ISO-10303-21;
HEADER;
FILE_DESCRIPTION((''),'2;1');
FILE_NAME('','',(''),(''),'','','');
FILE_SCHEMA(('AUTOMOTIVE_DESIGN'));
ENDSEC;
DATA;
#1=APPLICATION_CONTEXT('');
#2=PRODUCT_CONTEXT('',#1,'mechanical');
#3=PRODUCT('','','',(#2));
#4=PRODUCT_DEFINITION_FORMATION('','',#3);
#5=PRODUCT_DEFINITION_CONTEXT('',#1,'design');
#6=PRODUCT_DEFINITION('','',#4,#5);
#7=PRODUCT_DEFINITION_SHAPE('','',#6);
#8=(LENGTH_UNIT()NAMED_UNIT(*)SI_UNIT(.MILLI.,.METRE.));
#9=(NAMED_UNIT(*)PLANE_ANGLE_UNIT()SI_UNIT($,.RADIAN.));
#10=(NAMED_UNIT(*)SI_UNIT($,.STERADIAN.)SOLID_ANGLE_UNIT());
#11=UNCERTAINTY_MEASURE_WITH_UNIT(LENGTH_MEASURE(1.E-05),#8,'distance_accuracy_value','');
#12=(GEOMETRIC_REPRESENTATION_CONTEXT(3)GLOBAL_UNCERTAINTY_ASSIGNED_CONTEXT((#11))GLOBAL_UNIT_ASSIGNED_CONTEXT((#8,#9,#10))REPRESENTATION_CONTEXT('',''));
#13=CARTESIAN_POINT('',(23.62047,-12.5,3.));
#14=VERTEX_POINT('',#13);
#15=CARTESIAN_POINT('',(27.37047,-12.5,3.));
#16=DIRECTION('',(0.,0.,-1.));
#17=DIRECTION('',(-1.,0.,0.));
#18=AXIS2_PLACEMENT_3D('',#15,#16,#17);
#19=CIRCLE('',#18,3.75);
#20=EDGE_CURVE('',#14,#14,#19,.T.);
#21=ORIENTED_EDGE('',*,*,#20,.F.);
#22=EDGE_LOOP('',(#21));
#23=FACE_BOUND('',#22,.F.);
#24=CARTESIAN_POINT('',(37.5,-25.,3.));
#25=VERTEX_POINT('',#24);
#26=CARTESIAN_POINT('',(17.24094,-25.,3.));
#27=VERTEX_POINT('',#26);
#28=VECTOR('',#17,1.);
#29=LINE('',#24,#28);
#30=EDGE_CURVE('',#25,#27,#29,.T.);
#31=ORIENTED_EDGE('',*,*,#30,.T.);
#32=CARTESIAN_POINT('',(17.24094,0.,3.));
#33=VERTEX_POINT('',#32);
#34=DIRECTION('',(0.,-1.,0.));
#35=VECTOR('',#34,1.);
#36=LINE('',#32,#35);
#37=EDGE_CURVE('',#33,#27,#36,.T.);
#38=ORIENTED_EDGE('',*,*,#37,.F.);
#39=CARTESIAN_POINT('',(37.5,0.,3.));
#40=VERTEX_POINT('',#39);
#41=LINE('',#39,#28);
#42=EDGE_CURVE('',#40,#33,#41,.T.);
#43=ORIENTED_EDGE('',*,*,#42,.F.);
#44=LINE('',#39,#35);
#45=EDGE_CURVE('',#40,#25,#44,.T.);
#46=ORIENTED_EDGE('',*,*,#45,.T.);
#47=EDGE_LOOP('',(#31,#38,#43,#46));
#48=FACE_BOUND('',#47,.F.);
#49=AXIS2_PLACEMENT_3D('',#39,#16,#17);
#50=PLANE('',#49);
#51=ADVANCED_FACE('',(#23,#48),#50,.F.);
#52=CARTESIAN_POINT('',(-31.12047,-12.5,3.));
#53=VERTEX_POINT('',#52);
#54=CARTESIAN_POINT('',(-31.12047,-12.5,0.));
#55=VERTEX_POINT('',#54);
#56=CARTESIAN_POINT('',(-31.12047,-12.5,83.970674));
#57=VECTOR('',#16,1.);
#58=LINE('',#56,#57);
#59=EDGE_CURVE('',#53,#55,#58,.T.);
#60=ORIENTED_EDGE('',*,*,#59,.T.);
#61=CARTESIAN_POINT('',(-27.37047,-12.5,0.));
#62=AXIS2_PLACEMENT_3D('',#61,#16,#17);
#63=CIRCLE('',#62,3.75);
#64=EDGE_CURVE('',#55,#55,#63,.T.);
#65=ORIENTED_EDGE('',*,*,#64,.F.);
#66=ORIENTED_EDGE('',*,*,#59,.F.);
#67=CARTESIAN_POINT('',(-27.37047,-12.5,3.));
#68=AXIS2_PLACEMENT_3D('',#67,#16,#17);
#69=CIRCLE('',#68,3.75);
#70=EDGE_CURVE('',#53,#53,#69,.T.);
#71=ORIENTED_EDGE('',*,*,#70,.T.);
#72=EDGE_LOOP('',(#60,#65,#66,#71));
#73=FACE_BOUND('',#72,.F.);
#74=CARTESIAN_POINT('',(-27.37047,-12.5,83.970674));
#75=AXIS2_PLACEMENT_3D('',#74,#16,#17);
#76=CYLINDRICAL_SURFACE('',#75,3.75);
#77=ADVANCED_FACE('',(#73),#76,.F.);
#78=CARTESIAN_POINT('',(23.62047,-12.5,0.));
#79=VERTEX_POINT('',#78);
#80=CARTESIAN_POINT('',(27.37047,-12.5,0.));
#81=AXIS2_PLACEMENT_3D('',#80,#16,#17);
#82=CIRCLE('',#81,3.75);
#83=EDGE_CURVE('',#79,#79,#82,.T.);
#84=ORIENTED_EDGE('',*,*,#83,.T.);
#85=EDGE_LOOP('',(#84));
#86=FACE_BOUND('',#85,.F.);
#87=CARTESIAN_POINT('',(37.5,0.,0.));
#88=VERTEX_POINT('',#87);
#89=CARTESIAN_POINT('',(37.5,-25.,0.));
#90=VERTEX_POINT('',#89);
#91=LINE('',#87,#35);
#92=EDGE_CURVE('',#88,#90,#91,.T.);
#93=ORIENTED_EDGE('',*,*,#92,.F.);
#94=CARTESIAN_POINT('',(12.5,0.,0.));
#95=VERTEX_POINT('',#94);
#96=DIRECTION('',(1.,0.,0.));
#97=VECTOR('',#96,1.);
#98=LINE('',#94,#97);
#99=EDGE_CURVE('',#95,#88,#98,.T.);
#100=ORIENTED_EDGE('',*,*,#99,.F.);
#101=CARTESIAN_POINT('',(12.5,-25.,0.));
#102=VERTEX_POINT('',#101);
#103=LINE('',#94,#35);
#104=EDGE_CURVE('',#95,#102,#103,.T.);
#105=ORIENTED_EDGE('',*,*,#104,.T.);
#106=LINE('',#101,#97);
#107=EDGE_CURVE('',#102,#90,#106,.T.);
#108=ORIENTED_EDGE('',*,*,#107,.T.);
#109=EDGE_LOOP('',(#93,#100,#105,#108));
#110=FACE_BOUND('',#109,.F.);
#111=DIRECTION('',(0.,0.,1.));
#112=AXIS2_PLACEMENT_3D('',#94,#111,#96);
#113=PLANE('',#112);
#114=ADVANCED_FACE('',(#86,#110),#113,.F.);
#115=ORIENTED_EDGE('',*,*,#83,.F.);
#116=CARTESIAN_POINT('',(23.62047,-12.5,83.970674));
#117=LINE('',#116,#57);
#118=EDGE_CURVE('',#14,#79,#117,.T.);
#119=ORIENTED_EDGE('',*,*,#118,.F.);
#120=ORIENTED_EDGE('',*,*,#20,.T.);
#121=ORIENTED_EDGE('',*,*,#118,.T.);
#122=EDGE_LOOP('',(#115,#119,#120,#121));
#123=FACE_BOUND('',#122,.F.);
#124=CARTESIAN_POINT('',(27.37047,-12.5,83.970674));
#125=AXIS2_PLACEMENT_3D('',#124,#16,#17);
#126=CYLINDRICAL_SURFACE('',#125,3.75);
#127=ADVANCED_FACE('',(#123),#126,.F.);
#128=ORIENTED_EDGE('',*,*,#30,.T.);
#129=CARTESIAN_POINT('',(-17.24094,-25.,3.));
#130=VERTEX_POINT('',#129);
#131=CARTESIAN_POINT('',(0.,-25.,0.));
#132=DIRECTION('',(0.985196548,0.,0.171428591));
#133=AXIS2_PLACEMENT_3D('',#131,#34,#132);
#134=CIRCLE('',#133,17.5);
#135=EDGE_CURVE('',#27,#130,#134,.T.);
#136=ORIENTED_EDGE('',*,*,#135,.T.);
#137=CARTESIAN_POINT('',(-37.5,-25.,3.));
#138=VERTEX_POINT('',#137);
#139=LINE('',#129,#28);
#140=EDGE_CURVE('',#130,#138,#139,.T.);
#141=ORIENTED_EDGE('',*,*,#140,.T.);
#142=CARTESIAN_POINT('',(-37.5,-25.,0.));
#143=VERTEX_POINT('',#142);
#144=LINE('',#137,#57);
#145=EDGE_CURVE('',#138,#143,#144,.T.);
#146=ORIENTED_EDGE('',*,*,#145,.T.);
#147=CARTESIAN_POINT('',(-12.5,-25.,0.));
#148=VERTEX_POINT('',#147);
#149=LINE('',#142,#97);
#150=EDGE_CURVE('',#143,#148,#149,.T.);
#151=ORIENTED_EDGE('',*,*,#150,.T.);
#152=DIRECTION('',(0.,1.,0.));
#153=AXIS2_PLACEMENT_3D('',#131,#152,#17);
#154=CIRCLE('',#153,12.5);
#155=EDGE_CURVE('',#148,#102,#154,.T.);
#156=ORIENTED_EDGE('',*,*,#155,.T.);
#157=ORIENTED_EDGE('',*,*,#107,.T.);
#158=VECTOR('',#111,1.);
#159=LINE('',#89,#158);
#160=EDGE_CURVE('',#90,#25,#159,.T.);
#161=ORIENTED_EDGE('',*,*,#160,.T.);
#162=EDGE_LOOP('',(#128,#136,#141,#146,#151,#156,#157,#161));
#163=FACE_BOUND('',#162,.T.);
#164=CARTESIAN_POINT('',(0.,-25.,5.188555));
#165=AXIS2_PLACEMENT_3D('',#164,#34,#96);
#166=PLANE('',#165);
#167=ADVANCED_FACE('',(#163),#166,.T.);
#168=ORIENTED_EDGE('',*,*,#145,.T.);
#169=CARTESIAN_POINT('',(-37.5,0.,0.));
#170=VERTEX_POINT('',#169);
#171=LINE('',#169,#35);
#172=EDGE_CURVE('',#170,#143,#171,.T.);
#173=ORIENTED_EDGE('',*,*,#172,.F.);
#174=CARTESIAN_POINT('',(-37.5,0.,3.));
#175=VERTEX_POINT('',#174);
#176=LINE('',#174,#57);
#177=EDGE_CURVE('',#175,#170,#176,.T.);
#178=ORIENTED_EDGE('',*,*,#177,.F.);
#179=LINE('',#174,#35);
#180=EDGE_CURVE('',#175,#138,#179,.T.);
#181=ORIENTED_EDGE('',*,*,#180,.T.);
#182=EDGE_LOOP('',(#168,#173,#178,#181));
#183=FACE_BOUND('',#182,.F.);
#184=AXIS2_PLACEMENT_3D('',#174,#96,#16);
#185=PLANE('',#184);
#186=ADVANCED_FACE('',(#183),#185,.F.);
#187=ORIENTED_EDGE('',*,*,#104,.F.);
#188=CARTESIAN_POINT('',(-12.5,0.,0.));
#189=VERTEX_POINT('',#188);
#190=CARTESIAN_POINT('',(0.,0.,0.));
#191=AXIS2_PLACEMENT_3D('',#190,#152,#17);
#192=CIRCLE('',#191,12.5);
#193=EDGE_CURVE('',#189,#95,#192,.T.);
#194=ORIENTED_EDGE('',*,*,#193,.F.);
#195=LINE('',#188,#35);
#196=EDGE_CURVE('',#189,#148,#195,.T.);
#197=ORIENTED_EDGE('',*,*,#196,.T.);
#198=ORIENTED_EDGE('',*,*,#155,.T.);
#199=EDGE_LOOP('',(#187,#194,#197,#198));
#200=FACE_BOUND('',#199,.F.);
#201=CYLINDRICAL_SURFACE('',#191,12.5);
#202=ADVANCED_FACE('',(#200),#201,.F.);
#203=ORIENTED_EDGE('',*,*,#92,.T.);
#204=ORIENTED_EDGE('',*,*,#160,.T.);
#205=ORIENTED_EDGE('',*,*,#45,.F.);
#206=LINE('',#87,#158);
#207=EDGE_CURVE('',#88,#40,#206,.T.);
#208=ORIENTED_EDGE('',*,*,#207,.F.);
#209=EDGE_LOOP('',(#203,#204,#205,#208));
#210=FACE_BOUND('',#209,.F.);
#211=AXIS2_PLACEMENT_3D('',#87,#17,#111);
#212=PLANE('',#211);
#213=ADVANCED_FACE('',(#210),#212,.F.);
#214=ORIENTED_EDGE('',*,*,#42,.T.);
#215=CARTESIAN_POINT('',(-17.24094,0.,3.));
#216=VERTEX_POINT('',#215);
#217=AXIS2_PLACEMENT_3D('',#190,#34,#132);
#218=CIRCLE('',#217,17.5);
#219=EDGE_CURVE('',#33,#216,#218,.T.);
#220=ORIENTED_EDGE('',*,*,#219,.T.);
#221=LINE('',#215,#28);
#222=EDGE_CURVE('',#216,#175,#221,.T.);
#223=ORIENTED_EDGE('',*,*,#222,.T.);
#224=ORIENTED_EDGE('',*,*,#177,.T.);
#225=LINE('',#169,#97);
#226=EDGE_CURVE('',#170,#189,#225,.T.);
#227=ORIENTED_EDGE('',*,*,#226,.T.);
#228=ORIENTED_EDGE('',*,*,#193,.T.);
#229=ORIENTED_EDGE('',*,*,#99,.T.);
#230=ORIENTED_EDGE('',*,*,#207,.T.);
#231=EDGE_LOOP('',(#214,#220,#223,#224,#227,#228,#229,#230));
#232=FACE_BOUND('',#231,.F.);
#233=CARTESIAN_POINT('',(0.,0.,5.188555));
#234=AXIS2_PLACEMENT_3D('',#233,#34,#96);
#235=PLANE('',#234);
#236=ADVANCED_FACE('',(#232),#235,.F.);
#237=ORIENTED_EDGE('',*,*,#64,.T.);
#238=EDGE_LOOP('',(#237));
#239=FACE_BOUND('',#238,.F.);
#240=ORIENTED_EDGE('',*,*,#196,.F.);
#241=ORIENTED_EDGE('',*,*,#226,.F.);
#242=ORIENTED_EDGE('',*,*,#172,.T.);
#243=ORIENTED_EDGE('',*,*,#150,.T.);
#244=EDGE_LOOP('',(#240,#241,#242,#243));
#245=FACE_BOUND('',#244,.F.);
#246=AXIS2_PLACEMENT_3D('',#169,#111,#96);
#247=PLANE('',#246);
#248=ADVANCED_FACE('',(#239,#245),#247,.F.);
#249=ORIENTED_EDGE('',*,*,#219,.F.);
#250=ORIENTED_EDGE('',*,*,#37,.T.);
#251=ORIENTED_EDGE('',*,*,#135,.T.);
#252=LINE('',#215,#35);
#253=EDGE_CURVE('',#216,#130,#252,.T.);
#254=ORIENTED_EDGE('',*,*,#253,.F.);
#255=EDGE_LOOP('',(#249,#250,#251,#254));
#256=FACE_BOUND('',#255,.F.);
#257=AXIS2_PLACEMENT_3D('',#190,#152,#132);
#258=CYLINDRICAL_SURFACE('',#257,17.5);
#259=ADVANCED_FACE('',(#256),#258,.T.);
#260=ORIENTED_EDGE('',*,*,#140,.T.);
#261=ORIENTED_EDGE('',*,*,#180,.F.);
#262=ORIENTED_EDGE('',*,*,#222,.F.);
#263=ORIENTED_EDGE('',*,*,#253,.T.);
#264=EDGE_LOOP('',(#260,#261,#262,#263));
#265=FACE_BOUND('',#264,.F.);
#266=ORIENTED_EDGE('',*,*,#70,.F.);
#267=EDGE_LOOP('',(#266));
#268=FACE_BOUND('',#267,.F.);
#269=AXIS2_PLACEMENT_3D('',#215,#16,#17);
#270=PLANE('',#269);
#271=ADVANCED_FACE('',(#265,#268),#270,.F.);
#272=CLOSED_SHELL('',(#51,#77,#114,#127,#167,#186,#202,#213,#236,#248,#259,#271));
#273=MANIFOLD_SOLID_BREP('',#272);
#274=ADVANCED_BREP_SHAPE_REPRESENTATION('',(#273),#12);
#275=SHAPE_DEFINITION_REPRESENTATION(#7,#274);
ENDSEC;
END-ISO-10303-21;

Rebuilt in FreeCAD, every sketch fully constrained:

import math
import FreeCAD as App
import Part
import Sketcher

V = App.Vector

doc = App.newDocument("Part")
body = doc.addObject("PartDesign::Body", "Body")

# Sketch on XZ plane
sketch1 = body.newObject("Sketcher::SketchObject", "Sketch")
sketch1.AttachmentSupport = (doc.getObject("XZ_Plane"), [""])
sketch1.MapMode = "FlatFace"
sketch1.addGeometry([
    Part.ArcOfCircle(Part.Circle(V(0, 0, 0), V(0, 0, 1), 12.5), math.radians(0), math.radians(180)),  # 0
    Part.LineSegment(V(12.5, 0, 0), V(37.5, 0, 0)),  # 1
    Part.LineSegment(V(37.5, 0, 0), V(37.5, 3, 0)),  # 2
    Part.LineSegment(V(37.5, 3, 0), V(17.24094, 3, 0)),  # 3
    Part.ArcOfCircle(Part.Circle(V(0, 0, 0), V(0, 0, 1), 17.5), math.radians(9.870891), math.radians(170.129109)),  # 4
    Part.LineSegment(V(-17.24094, 3, 0), V(-37.5, 3, 0)),  # 5
    Part.LineSegment(V(-37.5, 3, 0), V(-37.5, 0, 0)),  # 6
    Part.LineSegment(V(-37.5, 0, 0), V(-12.5, 0, 0)),  # 7
], False)
sketch1.addConstraint([
    Sketcher.Constraint("Coincident", 0, 1, 1, 1),
    Sketcher.Constraint("Coincident", 1, 2, 2, 1),
    Sketcher.Constraint("Coincident", 2, 2, 3, 1),
    Sketcher.Constraint("Coincident", 3, 2, 4, 1),
    Sketcher.Constraint("Coincident", 4, 2, 5, 1),
    Sketcher.Constraint("Coincident", 5, 2, 6, 1),
    Sketcher.Constraint("Coincident", 6, 2, 7, 1),
    Sketcher.Constraint("Coincident", 7, 2, 0, 2),
    Sketcher.Constraint("Horizontal", 1),
    Sketcher.Constraint("Vertical", 2),
    Sketcher.Constraint("Horizontal", 3),
    Sketcher.Constraint("Horizontal", 5),
    Sketcher.Constraint("Vertical", 6),
    Sketcher.Constraint("Horizontal", 7),
    Sketcher.Constraint("Coincident", 0, 3, -1, 1),
    Sketcher.Constraint("Coincident", 4, 3, -1, 1),
    Sketcher.Constraint("Symmetric", 1, 2, 6, 2, -1, 1),
    Sketcher.Constraint("PointOnObject", 0, 1, -1),
    Sketcher.Constraint("Horizontal", 3, 2, 4, 2),
    Sketcher.Constraint("Radius", 0, 12.5),
    Sketcher.Constraint("Radius", 4, 17.5),
    Sketcher.Constraint("DistanceX", 1, 1, 1, 2, 25.0),
    Sketcher.Constraint("DistanceY", 2, 1, 2, 2, 3.0),
])
pad1 = body.newObject("PartDesign::Pad", "Pad")
pad1.Profile = sketch1
pad1.Length = 25

# Sketch on XY plane
sketch2 = body.newObject("Sketcher::SketchObject", "Sketch001")
sketch2.AttachmentSupport = (doc.getObject("XY_Plane"), [""])
sketch2.MapMode = "FlatFace"
sketch2.AttachmentOffset = App.Placement(V(0, 0, 3), App.Rotation())
sketch2.addGeometry(Part.Circle(V(-27.37047, -12.5, 0), V(0, 0, 1), 3.75), False)
sketch2.addConstraint([
    Sketcher.Constraint("Diameter", 0, 7.5),
    Sketcher.Constraint("DistanceY", 0, 3, -1, 1, 12.5),
    Sketcher.Constraint("DistanceX", 0, 3, -1, 1, 27.37047),
])
doc.recompute()
hole = body.newObject("PartDesign::Hole", "Hole")
hole.Profile = sketch2
hole.ThreadType = "None"
hole.Diameter = 7.5
hole.DepthType = "ThroughAll"

# Sketch on XY plane
sketch3 = body.newObject("Sketcher::SketchObject", "Sketch002")
sketch3.AttachmentSupport = (doc.getObject("XY_Plane"), [""])
sketch3.MapMode = "FlatFace"
sketch3.AttachmentOffset = App.Placement(V(0, 0, 3), App.Rotation())
sketch3.addGeometry(Part.Circle(V(27.37047, -12.5, 0), V(0, 0, 1), 3.75), False)
sketch3.addConstraint([
    Sketcher.Constraint("Diameter", 0, 7.5),
    Sketcher.Constraint("DistanceY", 0, 3, -1, 1, 12.5),
    Sketcher.Constraint("DistanceX", -1, 1, 0, 3, 27.37047),
])
doc.recompute()
hole2 = body.newObject("PartDesign::Hole", "Hole001")
hole2.Profile = sketch3
hole2.ThreadType = "None"
hole2.Diameter = 7.5
hole2.DepthType = "ThroughAll"

doc.recompute()
